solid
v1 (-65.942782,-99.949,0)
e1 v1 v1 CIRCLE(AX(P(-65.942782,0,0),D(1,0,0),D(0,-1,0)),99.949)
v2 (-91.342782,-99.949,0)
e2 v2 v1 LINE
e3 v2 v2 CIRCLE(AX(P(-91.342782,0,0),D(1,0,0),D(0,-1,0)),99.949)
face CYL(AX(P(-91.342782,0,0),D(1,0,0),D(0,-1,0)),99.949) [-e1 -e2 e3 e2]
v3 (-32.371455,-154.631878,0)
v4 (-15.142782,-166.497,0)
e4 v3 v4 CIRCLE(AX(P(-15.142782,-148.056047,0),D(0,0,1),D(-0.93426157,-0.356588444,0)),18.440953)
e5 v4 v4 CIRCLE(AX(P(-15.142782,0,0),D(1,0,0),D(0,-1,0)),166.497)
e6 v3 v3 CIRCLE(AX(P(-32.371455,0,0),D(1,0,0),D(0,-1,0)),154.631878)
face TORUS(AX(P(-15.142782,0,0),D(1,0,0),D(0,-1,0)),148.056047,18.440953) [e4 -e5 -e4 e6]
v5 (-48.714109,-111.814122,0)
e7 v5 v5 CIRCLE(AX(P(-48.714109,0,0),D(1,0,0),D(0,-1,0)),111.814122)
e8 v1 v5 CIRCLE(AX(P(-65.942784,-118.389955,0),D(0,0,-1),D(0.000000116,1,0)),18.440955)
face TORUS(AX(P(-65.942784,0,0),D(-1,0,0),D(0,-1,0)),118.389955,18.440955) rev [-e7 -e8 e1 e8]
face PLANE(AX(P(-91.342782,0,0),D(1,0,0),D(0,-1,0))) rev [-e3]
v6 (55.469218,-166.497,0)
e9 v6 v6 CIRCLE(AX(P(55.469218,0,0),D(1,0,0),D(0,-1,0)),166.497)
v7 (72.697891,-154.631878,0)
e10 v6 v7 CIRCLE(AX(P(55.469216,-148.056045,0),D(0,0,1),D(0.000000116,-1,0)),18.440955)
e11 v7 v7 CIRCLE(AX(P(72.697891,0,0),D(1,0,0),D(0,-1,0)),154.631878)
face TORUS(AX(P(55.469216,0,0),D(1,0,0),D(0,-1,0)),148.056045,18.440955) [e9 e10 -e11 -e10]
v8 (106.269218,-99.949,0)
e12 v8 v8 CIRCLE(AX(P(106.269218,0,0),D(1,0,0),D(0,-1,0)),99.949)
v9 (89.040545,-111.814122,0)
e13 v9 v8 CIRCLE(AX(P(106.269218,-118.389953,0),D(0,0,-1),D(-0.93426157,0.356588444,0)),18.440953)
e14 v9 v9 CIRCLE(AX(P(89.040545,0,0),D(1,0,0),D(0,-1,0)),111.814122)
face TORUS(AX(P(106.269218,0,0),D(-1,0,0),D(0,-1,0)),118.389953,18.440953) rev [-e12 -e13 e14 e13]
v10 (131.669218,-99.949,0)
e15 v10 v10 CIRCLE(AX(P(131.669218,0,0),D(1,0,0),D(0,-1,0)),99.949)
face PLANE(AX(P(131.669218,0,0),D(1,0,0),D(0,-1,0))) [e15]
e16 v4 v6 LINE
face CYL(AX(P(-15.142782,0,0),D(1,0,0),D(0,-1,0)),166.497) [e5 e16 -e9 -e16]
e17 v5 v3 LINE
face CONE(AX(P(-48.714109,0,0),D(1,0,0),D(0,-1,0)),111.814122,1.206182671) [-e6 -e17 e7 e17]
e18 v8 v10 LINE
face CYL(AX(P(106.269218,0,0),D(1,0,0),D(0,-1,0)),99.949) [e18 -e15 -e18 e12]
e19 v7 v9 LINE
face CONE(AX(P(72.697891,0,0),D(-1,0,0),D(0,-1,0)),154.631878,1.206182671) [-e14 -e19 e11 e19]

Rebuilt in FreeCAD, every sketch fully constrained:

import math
import FreeCAD as App
import Part
import Sketcher

V = App.Vector
Q = App.Units.Quantity

doc = App.newDocument("Part")
body = doc.addObject("PartDesign::Body", "Body")

# Sketch on XY plane
sketch1 = body.newObject("Sketcher::SketchObject", "Sketch")
sketch1.AttachmentSupport = (doc.getObject("XY_Plane"), [""])
sketch1.MapMode = "FlatFace"
sketch1.addGeometry([
    Part.LineSegment(V(131.669218, 0, 0), V(-91.342782, 0, 0)),  # 0
    Part.LineSegment(V(-91.342782, 0, 0), V(-91.342782, -99.949, 0)),  # 1
    Part.LineSegment(V(-91.342782, -99.949, 0), V(-65.942782, -99.949, 0)),  # 2
    Part.ArcOfCircle(Part.Circle(V(-65.942784, -118.389955, 0), V(0, 0, 1), 18.440955), math.radians(20.890834), math.radians(89.999993)),  # 3
    Part.LineSegment(V(-48.714109, -111.814122, 0), V(-32.371455, -154.631878, 0)),  # 4
    Part.ArcOfCircle(Part.Circle(V(-15.142782, -148.056047, 0), V(0, 0, 1), 18.440953), math.radians(-159.109172), math.radians(-90.000001)),  # 5
    Part.LineSegment(V(-15.142782, -166.497, 0), V(55.469218, -166.497, 0)),  # 6
    Part.ArcOfCircle(Part.Circle(V(55.469216, -148.056045, 0), V(0, 0, 1), 18.440955), math.radians(-89.999993), math.radians(-20.890834)),  # 7
    Part.LineSegment(V(72.697891, -154.631878, 0), V(89.040545, -111.814122, 0)),  # 8
    Part.ArcOfCircle(Part.Circle(V(106.269218, -118.389953, 0), V(0, 0, 1), 18.440953), math.radians(90.000001), math.radians(159.109172)),  # 9
    Part.LineSegment(V(106.269218, -99.949, 0), V(131.669218, -99.949, 0)),  # 10
    Part.LineSegment(V(131.669218, -99.949, 0), V(131.669218, 0, 0)),  # 11
], False)
sketch1.addConstraint([
    Sketcher.Constraint("Coincident", 0, 2, 1, 1),
    Sketcher.Constraint("Coincident", 1, 2, 2, 1),
    Sketcher.Constraint("Tangent", 2, 2, 3, 2),
    Sketcher.Constraint("Tangent", 3, 1, 4, 1),
    Sketcher.Constraint("Tangent", 4, 2, 5, 1),
    Sketcher.Constraint("Tangent", 5, 2, 6, 1),
    Sketcher.Constraint("Tangent", 6, 2, 7, 1),
    Sketcher.Constraint("Tangent", 7, 2, 8, 1),
    Sketcher.Constraint("Tangent", 8, 2, 9, 2),
    Sketcher.Constraint("Tangent", 9, 1, 10, 1),
    Sketcher.Constraint("Coincident", 10, 2, 11, 1),
    Sketcher.Constraint("Coincident", 11, 2, 0, 1),
    Sketcher.Constraint("Horizontal", 0),
    Sketcher.Constraint("Vertical", 1),
    Sketcher.Constraint("Horizontal", 2),
    Sketcher.Constraint("Horizontal", 6),
    Sketcher.Constraint("Horizontal", 10),
    Sketcher.Constraint("Vertical", 11),
    Sketcher.Constraint("Equal", 3, 7),
    Sketcher.Constraint("Equal", 5, 9),
    Sketcher.Constraint("PointOnObject", 0, 2, -1),
    Sketcher.Constraint("Horizontal", 4, 2, 7, 2),
    Sketcher.Constraint("Horizontal", 3, 1, 8, 2),
    Sketcher.Constraint("Horizontal", 2, 2, 9, 1),
    Sketcher.Constraint("Equal", 2, 10),
    Sketcher.Constraint("DistanceX", 2, 1, 2, 2, Q("1 in")),
    Sketcher.Constraint("DistanceX", 3, 3, 5, 3, Q("2.0000001 in")),
    Sketcher.Constraint("DistanceX", 0, 2, 0, 1, Q("8.78 in")),
    Sketcher.Constraint("DistanceY", 1, 2, 1, 1, Q("3.935 in")),
    Sketcher.Constraint("DistanceY", 6, 2, 9, 1, Q("2.62 in")),
    Sketcher.Constraint("Radius", 3, 18.440955),
    Sketcher.Constraint("DistanceX", 5, 3, -1, 1, 15.142782),
])
revolution = body.newObject("PartDesign::Revolution", "Revolution")
revolution.Profile = sketch1
revolution.ReferenceAxis = (sketch1, ["H_Axis"])
revolution.Angle = 360

doc.recompute()
